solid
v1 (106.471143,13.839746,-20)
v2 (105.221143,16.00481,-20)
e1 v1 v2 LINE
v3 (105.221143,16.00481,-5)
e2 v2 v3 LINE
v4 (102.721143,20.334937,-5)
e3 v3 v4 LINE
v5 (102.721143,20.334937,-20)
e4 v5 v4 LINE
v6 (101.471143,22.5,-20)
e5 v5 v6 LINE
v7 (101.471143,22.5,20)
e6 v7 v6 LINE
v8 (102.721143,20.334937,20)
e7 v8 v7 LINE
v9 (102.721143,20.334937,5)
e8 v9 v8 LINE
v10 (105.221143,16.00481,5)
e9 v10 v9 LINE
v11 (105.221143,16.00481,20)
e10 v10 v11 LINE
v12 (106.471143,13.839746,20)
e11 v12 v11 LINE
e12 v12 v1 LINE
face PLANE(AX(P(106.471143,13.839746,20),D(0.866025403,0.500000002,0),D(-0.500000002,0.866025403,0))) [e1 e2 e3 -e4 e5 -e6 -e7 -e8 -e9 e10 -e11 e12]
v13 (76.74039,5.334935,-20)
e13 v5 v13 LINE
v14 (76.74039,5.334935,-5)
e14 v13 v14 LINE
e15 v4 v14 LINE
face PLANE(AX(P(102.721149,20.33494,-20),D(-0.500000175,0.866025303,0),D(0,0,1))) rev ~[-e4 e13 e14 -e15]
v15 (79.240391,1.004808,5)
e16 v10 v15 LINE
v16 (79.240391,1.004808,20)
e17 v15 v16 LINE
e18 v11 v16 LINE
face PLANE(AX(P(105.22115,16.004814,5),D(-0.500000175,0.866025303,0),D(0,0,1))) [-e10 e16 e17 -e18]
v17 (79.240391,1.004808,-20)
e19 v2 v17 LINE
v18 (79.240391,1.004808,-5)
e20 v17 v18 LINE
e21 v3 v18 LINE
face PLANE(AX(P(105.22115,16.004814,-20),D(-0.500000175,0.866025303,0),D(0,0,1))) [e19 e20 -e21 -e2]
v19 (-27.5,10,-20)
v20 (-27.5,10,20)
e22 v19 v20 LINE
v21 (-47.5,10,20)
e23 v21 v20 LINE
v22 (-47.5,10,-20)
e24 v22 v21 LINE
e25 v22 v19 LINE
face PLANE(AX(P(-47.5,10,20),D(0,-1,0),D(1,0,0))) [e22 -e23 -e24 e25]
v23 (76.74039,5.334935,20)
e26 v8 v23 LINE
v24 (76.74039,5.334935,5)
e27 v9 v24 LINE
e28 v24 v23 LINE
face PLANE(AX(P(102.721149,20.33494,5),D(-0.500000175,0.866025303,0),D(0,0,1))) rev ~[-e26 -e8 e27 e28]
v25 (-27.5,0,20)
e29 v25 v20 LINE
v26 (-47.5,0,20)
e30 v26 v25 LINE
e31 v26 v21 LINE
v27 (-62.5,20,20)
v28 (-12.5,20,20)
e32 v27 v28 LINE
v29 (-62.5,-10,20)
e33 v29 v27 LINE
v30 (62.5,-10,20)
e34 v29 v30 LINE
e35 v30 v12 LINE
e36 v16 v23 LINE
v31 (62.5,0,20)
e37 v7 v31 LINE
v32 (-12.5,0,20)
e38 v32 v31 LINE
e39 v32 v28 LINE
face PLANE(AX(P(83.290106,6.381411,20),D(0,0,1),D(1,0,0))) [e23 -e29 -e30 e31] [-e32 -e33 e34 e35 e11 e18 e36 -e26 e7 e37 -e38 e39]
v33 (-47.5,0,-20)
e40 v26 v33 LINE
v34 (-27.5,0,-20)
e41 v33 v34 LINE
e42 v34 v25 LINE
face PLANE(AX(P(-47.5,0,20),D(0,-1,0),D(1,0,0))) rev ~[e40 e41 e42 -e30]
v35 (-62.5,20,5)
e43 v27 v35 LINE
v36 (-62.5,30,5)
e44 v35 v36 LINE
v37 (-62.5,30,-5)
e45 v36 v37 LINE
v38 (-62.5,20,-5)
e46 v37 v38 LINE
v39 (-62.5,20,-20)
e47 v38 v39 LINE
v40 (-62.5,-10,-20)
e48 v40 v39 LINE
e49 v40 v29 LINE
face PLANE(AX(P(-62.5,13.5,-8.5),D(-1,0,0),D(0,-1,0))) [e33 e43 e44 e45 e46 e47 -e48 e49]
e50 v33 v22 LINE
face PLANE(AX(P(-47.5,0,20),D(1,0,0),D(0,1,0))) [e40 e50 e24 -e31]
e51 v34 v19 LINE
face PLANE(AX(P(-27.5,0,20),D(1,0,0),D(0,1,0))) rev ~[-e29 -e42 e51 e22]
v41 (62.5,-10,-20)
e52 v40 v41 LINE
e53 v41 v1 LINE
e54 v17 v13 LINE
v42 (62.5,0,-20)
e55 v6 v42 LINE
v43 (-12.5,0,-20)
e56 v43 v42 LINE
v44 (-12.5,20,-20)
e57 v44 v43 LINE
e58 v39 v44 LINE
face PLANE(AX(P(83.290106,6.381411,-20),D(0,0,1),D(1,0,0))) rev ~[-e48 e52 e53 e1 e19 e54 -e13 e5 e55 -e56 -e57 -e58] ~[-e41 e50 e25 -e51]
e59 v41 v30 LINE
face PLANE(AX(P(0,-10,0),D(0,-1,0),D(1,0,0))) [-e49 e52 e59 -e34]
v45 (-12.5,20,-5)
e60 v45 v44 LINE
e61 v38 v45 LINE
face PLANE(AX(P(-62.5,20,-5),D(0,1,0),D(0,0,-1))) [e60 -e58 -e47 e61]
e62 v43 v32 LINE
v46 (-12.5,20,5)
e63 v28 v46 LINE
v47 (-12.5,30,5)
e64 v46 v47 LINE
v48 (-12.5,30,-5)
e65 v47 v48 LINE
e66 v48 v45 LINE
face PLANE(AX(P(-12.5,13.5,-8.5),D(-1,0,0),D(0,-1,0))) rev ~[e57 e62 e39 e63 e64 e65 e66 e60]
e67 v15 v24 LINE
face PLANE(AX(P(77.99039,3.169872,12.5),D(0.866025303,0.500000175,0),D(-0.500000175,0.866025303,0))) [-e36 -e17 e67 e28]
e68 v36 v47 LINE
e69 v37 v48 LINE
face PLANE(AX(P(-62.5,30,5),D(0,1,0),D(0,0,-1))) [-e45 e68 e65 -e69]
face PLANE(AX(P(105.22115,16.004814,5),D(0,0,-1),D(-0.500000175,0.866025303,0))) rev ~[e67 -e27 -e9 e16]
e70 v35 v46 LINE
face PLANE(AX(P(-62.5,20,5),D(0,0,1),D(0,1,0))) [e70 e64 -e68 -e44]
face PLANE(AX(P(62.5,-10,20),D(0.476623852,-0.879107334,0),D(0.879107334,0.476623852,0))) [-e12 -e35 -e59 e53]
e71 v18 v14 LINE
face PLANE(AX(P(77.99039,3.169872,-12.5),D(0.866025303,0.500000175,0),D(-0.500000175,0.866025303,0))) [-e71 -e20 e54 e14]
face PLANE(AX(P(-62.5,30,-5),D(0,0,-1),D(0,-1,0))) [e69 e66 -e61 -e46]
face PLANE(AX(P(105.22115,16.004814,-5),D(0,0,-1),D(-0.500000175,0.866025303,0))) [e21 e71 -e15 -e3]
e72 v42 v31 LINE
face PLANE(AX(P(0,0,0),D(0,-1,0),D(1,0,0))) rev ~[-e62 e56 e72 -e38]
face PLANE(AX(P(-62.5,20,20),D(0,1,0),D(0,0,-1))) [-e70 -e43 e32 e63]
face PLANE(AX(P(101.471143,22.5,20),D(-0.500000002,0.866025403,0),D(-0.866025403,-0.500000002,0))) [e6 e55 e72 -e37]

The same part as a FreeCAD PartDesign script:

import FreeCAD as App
import Part
import Sketcher
from FreeCAD import Vector
Q = App.Units.Quantity


def add_polygon(sketch, points):
    """Adds a closed chain of lines whose ends are joined by coincident constraints."""
    first, n = sketch.GeometryCount, len(points)
    for a, b in zip(points, points[1:] + points[:1]):
        sketch.addGeometry(Part.LineSegment(App.Vector(*a, 0), App.Vector(*b, 0)), False)
    for i in range(n):
        sketch.addConstraint(Sketcher.Constraint("Coincident", first + i, 2, first + (i + 1) % n, 1))

doc = App.newDocument("Part")
body = doc.addObject("PartDesign::Body", "Body")

sketch1 = body.newObject("Sketcher::SketchObject", "Sketch")
sketch1.AttachmentSupport = (doc.getObject("XZ_Plane"), [""])
sketch1.MapMode = "FlatFace"
add_polygon(sketch1, [(-62, 20), (-62, -20), (62, -20), (62, 20)])
sketch1.addConstraint([
    Sketcher.Constraint("Vertical", 0),
    Sketcher.Constraint("Horizontal", 1),
    Sketcher.Constraint("Vertical", 2),
    Sketcher.Constraint("Horizontal", 3),
    Sketcher.Constraint("Symmetric", 0, 2, 2, 2, -1, 1),
    Sketcher.Constraint("DistanceX", 1, 1, 1, 2, 125.0),
    Sketcher.Constraint("DistanceY", 0, 2, 0, 1, 40.0),
])
pad1 = body.newObject("PartDesign::Pad", "Pad")
pad1.Profile = sketch1
pad1.Length = 10

sketch2 = body.newObject("Sketcher::SketchObject", "Sketch001")
sketch2.AttachmentSupport = (doc.getObject("YZ_Plane"), [""])
sketch2.MapMode = "FlatFace"
sketch2.AttachmentOffset = App.Placement(Vector(0, 0, -62.5), App.Rotation())
add_polygon(sketch2, [(20, -20), (0, -20), (0, 20), (20, 20), (20, 5), (30, 5), (30, -5), (20, -5)])
sketch2.addConstraint([
    Sketcher.Constraint("Horizontal", 0),
    Sketcher.Constraint("Vertical", 1),
    Sketcher.Constraint("Horizontal", 2),
    Sketcher.Constraint("Vertical", 3),
    Sketcher.Constraint("Horizontal", 4),
    Sketcher.Constraint("Vertical", 5),
    Sketcher.Constraint("Horizontal", 6),
    Sketcher.Constraint("Vertical", 7),
    Sketcher.Constraint("Symmetric", 0, 2, 1, 2, -1, 1),
    Sketcher.Constraint("Symmetric", 3, 2, 6, 2, -1),
    Sketcher.Constraint("Equal", 6, 5),
    Sketcher.Constraint("DistanceX", 0, 2, 0, 1, 20.0),
    Sketcher.Constraint("DistanceX", 4, 1, 4, 2, 10.0),
    Sketcher.Constraint("DistanceY", 1, 1, 1, 2, 40.0),
])
pad2 = body.newObject("PartDesign::Pad", "Pad001")
pad2.Profile = sketch2
pad2.Length = 50

sketch3 = body.newObject("Sketcher::SketchObject", "Sketch002")
sketch3.AttachmentSupport = (doc.getObject("XY_Plane"), [""])
sketch3.MapMode = "FlatFace"
sketch3.AttachmentOffset = App.Placement(Vector(0, 0, 20), App.Rotation())
add_polygon(sketch3, [(-48, 10), (-48, 0), (-28, 0), (-28, 10)])
sketch3.addConstraint([
    Sketcher.Constraint("Vertical", 0),
    Sketcher.Constraint("Horizontal", 1),
    Sketcher.Constraint("Vertical", 2),
    Sketcher.Constraint("Horizontal", 3),
    Sketcher.Constraint("PointOnObject", 0, 2, -1),
    Sketcher.Constraint("DistanceX", 1, 1, 1, 2, 20.0),
    Sketcher.Constraint("DistanceY", 0, 2, 0, 1, 10.0),
    Sketcher.Constraint("DistanceX", 0, 2, -1, 1, 47.5),
])
pocket1 = body.newObject("PartDesign::Pocket", "Pocket")
pocket1.Profile = sketch3
pocket1.Length = 40
pocket2 = body.newObject("PartDesign::Pocket", "Pocket001")
pocket2.Profile = sketch3
pocket2.Length = 25

sketch4 = body.newObject("Sketcher::SketchObject", "Sketch003")
sketch4.AttachmentSupport = (doc.getObject("XY_Plane"), [""])
sketch4.MapMode = "FlatFace"
sketch4.AttachmentOffset = App.Placement(Vector(0, 0, 20), App.Rotation())
add_polygon(sketch4, [(101, 22), (62, 0), (62, -10), (106, 14)])
sketch4.addConstraint([
    Sketcher.Constraint("Vertical", 1),
    Sketcher.Constraint("PointOnObject", 0, 2, -1),
    Sketcher.Constraint("Perpendicular", 0, 3),
    Sketcher.Constraint("DistanceY", 1, 2, 1, 1, 10.0),
    Sketcher.Constraint("Angle", 0, Q("-150 deg")),
    Sketcher.Constraint("Distance", 0, 45.0),
    Sketcher.Constraint("Distance", 3, 10.0),
    Sketcher.Constraint("DistanceX", -1, 1, 0, 2, 62.5),
])
pad3 = body.newObject("PartDesign::Pad", "Pad002")
pad3.Profile = sketch4
pad3.Length = 40
pad3.Reversed = True

sketch5 = body.newObject("Sketcher::SketchObject", "Sketch004")
sketch5.Placement = App.Placement(Vector(85.846143, 49.563294, 0), App.Rotation(Vector(-0.500000175, 0.866025303, 0), Vector(0, 0, 1), Vector(0.866025303, 0.500000175, 0), "ZXY"))
add_polygon(sketch5, [(-39, -5), (-39, -20), (-34, -20), (-34, -5)])
add_polygon(sketch5, [(-39, 20), (-39, 5), (-34, 5), (-34, 20)])
sketch5.addConstraint([
    Sketcher.Constraint("Vertical", 0),
    Sketcher.Constraint("Horizontal", 1),
    Sketcher.Constraint("Vertical", 2),
    Sketcher.Constraint("Horizontal", 3),
    Sketcher.Constraint("Vertical", 4),
    Sketcher.Constraint("Horizontal", 5),
    Sketcher.Constraint("Vertical", 6),
    Sketcher.Constraint("Horizontal", 7),
    Sketcher.Constraint("Symmetric", 3, 2, 4, 2, -1),
    Sketcher.Constraint("Symmetric", 1, 2, 6, 2, -1),
    Sketcher.Constraint("DistanceX", 1, 1, 1, 2, 5.0),
    Sketcher.Constraint("DistanceY", 0, 2, 0, 1, 15.0),
    Sketcher.Constraint("DistanceY", 0, 2, -1, 1, 20.0),
    Sketcher.Constraint("DistanceX", 0, 2, -1, 1, 38.75),
])
pocket3 = body.newObject("PartDesign::Pocket", "Pocket002")
pocket3.Profile = sketch5
pocket3.Length = 30

doc.recompute()
